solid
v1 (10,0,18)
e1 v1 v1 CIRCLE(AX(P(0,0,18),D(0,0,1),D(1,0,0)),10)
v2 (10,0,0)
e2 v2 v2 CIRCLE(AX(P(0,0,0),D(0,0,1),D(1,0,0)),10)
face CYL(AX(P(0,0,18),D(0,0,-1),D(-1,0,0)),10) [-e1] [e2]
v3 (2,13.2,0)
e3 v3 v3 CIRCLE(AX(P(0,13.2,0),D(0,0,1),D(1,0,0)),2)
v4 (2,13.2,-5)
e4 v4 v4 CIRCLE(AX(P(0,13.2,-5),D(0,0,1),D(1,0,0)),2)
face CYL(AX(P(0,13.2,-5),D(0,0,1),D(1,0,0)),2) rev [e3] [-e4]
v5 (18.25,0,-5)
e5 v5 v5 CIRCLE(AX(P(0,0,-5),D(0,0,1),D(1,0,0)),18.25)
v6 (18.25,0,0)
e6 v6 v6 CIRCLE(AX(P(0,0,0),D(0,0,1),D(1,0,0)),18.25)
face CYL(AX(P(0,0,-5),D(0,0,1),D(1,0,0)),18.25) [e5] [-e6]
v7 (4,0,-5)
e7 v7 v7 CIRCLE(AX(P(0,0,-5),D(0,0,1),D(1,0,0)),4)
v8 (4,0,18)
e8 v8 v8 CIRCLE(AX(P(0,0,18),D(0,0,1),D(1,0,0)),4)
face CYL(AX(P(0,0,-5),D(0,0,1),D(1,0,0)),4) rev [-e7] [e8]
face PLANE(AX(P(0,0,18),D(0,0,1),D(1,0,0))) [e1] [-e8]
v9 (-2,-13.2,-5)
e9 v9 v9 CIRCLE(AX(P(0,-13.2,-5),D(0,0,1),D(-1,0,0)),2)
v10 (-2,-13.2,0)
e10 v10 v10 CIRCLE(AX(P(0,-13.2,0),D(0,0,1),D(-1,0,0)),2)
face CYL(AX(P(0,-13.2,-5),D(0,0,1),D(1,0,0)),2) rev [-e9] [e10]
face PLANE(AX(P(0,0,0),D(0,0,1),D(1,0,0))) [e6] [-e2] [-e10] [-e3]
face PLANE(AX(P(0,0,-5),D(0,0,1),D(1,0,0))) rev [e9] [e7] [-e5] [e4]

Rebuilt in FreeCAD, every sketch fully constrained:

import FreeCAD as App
import Part
import Sketcher
from FreeCAD import Vector
Q = App.Units.Quantity

doc = App.newDocument("Part")
params = doc.addObject("Spreadsheet::Sheet", "Params")
for row, (alias, value) in enumerate([
    ("sketch1_diameter", "4 mm"),
    ("sketch1_diameter2", "36.5 mm"),
    ("pad1_length", "5 mm"),
    ("sketch2_diameter", "20 mm"),
    ("pad2_length", "18 mm"),
    ("sketch3_diameter", "8 mm"),
    ("pocket1_length", "23 mm"),
], start=1):
    params.set(f"A{row}", alias)
    params.set(f"B{row}", "=" + value)
    params.setAlias(f"B{row}", alias)

body = doc.addObject("PartDesign::Body", "Body")

sketch1 = doc.addObject("Sketcher::SketchObject", "Sketch")
body.addObject(sketch1)
sketch1.AttachmentSupport = (doc.XY_Plane, [""])
sketch1.MapMode = "FlatFace"
sketch1.addGeometry([
    Part.Circle(Vector(0, 0, 0), Vector(0, 0, 1), 18.25),
    Part.Circle(Vector(0, -13.2, 0), Vector(0, 0, 1), 2),
    Part.Circle(Vector(0, 13.2, 0), Vector(0, 0, 1), 2),
], False)
sketch1.addConstraint([
    Sketcher.Constraint("Coincident", 0, 3, -1, 1),
    Sketcher.Constraint("Equal", 1, 2),
    Sketcher.Constraint("Symmetric", 1, 3, 2, 3, -1, 1),
    Sketcher.Constraint("PointOnObject", 1, 3, -2),
    Sketcher.Constraint("Diameter", 1, Q("4 mm")),
    Sketcher.Constraint("Diameter", 0, Q("36.5 mm")),
    Sketcher.Constraint("DistanceY", 1, 3, -1, 1, Q("13.2 mm")),
])
sketch1.setExpression("Constraints[4]", "Params.sketch1_diameter")
sketch1.setExpression("Constraints[5]", "Params.sketch1_diameter2")
pad1 = doc.addObject("PartDesign::Pad", "Pad")
body.addObject(pad1)
pad1.Profile = sketch1
pad1.setExpression("Length", "Params.pad1_length")
pad1.Reversed = True

sketch2 = doc.addObject("Sketcher::SketchObject", "Sketch001")
body.addObject(sketch2)
sketch2.AttachmentSupport = (doc.XY_Plane, [""])
sketch2.MapMode = "FlatFace"
sketch2.addGeometry(Part.Circle(Vector(0, 0, 0), Vector(0, 0, 1), 10), False)
sketch2.addConstraint([
    Sketcher.Constraint("Coincident", 0, 3, -1, 1),
    Sketcher.Constraint("Diameter", 0, Q("20 mm")),
])
sketch2.setExpression("Constraints[1]", "Params.sketch2_diameter")
pad2 = doc.addObject("PartDesign::Pad", "Pad001")
body.addObject(pad2)
pad2.Profile = sketch2
pad2.setExpression("Length", "Params.pad2_length")

sketch3 = doc.addObject("Sketcher::SketchObject", "Sketch002")
body.addObject(sketch3)
sketch3.AttachmentSupport = (doc.XY_Plane, [""])
sketch3.MapMode = "FlatFace"
sketch3.AttachmentOffset = App.Placement(Vector(0, 0, 18), App.Rotation())
sketch3.addGeometry(Part.Circle(Vector(0, 0, 0), Vector(0, 0, 1), 4), False)
sketch3.addConstraint([
    Sketcher.Constraint("Coincident", 0, 3, -1, 1),
    Sketcher.Constraint("Diameter", 0, Q("8 mm")),
])
sketch3.setExpression("Constraints[1]", "Params.sketch3_diameter")
pocket1 = doc.addObject("PartDesign::Pocket", "Pocket")
body.addObject(pocket1)
pocket1.Profile = sketch3
pocket1.setExpression("Length", "Params.pocket1_length")

doc.recompute()
